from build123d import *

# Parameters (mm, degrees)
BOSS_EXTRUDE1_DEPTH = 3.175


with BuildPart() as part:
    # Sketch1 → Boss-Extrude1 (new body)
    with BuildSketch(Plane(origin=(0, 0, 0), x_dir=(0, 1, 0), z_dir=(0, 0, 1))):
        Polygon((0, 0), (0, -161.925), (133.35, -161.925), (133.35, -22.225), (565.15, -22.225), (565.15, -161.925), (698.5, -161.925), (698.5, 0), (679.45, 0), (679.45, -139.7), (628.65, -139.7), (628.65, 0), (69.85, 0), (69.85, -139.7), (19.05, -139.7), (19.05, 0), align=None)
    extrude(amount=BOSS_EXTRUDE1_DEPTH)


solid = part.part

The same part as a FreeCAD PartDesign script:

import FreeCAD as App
import Part
import Sketcher

V = App.Vector
Q = App.Units.Quantity

doc = App.newDocument("Part")
body = doc.addObject("PartDesign::Body", "Body")

# Sketch on XY plane
sketch1 = body.newObject("Sketcher::SketchObject", "Sketch")
sketch1.AttachmentSupport = (doc.getObject("XY_Plane"), [""])
sketch1.MapMode = "FlatFace"
sketch1.addGeometry([
    Part.LineSegment(V(0, 0, 0), V(162, 0, 0)),  # 0
    Part.LineSegment(V(162, 0, 0), V(162, 133, 0)),  # 1
    Part.LineSegment(V(162, 133, 0), V(22, 133, 0)),  # 2
    Part.LineSegment(V(22, 133, 0), V(22, 565, 0)),  # 3
    Part.LineSegment(V(22, 565, 0), V(162, 565, 0)),  # 4
    Part.LineSegment(V(162, 565, 0), V(162, 698, 0)),  # 5
    Part.LineSegment(V(162, 698, 0), V(0, 698, 0)),  # 6
    Part.LineSegment(V(0, 698, 0), V(0, 679, 0)),  # 7
    Part.LineSegment(V(0, 679, 0), V(140, 679, 0)),  # 8
    Part.LineSegment(V(140, 679, 0), V(140, 629, 0)),  # 9
    Part.LineSegment(V(140, 629, 0), V(0, 629, 0)),  # 10
    Part.LineSegment(V(0, 629, 0), V(0, 70, 0)),  # 11
    Part.LineSegment(V(0, 70, 0), V(140, 70, 0)),  # 12
    Part.LineSegment(V(140, 70, 0), V(140, 19, 0)),  # 13
    Part.LineSegment(V(140, 19, 0), V(0, 19, 0)),  # 14
    Part.LineSegment(V(0, 19, 0), V(0, 0, 0)),  # 15
], False)
sketch1.addConstraint([
    Sketcher.Constraint("Coincident", 0, 2, 1, 1),
    Sketcher.Constraint("Coincident", 1, 2, 2, 1),
    Sketcher.Constraint("Coincident", 2, 2, 3, 1),
    Sketcher.Constraint("Coincident", 3, 2, 4, 1),
    Sketcher.Constraint("Coincident", 4, 2, 5, 1),
    Sketcher.Constraint("Coincident", 5, 2, 6, 1),
    Sketcher.Constraint("Coincident", 6, 2, 7, 1),
    Sketcher.Constraint("Coincident", 7, 2, 8, 1),
    Sketcher.Constraint("Coincident", 8, 2, 9, 1),
    Sketcher.Constraint("Coincident", 9, 2, 10, 1),
    Sketcher.Constraint("Coincident", 10, 2, 11, 1),
    Sketcher.Constraint("Coincident", 11, 2, 12, 1),
    Sketcher.Constraint("Coincident", 12, 2, 13, 1),
    Sketcher.Constraint("Coincident", 13, 2, 14, 1),
    Sketcher.Constraint("Coincident", 14, 2, 15, 1),
    Sketcher.Constraint("Coincident", 15, 2, 0, 1),
    Sketcher.Constraint("Horizontal", 0),
    Sketcher.Constraint("Vertical", 1),
    Sketcher.Constraint("Horizontal", 2),
    Sketcher.Constraint("Vertical", 3),
    Sketcher.Constraint("Horizontal", 4),
    Sketcher.Constraint("Vertical", 5),
    Sketcher.Constraint("Horizontal", 6),
    Sketcher.Constraint("Vertical", 7),
    Sketcher.Constraint("Horizontal", 8),
    Sketcher.Constraint("Vertical", 9),
    Sketcher.Constraint("Horizontal", 10),
    Sketcher.Constraint("Vertical", 11),
    Sketcher.Constraint("Horizontal", 12),
    Sketcher.Constraint("Vertical", 13),
    Sketcher.Constraint("Horizontal", 14),
    Sketcher.Constraint("Vertical", 15),
    Sketcher.Constraint("Coincident", 15, 2, -1, 1),
    Sketcher.Constraint("PointOnObject", 6, 2, -2),
    Sketcher.Constraint("PointOnObject", 10, 2, -2),
    Sketcher.Constraint("Vertical", 1, 2, 4, 2),
    Sketcher.Constraint("Vertical", 9, 2, 12, 2),
    Sketcher.Constraint("Equal", 4, 8),
    Sketcher.Constraint("Equal", 1, 5),
    Sketcher.Constraint("Equal", 9, 13),
    Sketcher.Constraint("Equal", 7, 15),
    Sketcher.Constraint("DistanceY", 3, 1, 3, 2, Q("17 in")),
    Sketcher.Constraint("DistanceY", 9, 2, 9, 1, Q("2 in")),
    Sketcher.Constraint("DistanceY", 11, 2, 11, 1, Q("22 in")),
    Sketcher.Constraint("DistanceX", 2, 2, 2, 1, Q("5.5 in")),
    Sketcher.Constraint("DistanceY", 1, 1, 1, 2, Q("5.25 in")),
    Sketcher.Constraint("DistanceX", 0, 1, 0, 2, Q("6.375 in")),
])
pad1 = body.newObject("PartDesign::Pad", "Pad")
pad1.Profile = sketch1
pad1.Length = Q("0.125 in")

doc.recompute()
